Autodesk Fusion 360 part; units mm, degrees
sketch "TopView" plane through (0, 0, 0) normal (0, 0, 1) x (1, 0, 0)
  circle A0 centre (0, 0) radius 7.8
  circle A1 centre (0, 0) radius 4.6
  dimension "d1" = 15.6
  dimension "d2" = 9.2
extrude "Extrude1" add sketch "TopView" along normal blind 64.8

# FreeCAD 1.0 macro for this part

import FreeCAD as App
import Part
import Sketcher

doc = App.newDocument("Part")
body = doc.addObject("PartDesign::Body", "Body")

# Sketch on XY plane
sketch1 = body.newObject("Sketcher::SketchObject", "Sketch")
sketch1.AttachmentSupport = (doc.getObject("XY_Plane"), [""])
sketch1.MapMode = "FlatFace"
sketch1.addGeometry([
    Part.Circle(App.Vector(0, 0, 0), App.Vector(0, 0, 1), 7.8),
    Part.Circle(App.Vector(0, 0, 0), App.Vector(0, 0, 1), 4.6),
], False)
sketch1.addConstraint([
    Sketcher.Constraint("Coincident", 0, 3, -1, 1),
    Sketcher.Constraint("Coincident", 1, 3, -1, 1),
    Sketcher.Constraint("Diameter", 0, 15.6),
    Sketcher.Constraint("Diameter", 1, 9.2),
])
pad1 = body.newObject("PartDesign::Pad", "Pad")
pad1.Profile = sketch1
pad1.Length = 64.8

doc.recompute()
